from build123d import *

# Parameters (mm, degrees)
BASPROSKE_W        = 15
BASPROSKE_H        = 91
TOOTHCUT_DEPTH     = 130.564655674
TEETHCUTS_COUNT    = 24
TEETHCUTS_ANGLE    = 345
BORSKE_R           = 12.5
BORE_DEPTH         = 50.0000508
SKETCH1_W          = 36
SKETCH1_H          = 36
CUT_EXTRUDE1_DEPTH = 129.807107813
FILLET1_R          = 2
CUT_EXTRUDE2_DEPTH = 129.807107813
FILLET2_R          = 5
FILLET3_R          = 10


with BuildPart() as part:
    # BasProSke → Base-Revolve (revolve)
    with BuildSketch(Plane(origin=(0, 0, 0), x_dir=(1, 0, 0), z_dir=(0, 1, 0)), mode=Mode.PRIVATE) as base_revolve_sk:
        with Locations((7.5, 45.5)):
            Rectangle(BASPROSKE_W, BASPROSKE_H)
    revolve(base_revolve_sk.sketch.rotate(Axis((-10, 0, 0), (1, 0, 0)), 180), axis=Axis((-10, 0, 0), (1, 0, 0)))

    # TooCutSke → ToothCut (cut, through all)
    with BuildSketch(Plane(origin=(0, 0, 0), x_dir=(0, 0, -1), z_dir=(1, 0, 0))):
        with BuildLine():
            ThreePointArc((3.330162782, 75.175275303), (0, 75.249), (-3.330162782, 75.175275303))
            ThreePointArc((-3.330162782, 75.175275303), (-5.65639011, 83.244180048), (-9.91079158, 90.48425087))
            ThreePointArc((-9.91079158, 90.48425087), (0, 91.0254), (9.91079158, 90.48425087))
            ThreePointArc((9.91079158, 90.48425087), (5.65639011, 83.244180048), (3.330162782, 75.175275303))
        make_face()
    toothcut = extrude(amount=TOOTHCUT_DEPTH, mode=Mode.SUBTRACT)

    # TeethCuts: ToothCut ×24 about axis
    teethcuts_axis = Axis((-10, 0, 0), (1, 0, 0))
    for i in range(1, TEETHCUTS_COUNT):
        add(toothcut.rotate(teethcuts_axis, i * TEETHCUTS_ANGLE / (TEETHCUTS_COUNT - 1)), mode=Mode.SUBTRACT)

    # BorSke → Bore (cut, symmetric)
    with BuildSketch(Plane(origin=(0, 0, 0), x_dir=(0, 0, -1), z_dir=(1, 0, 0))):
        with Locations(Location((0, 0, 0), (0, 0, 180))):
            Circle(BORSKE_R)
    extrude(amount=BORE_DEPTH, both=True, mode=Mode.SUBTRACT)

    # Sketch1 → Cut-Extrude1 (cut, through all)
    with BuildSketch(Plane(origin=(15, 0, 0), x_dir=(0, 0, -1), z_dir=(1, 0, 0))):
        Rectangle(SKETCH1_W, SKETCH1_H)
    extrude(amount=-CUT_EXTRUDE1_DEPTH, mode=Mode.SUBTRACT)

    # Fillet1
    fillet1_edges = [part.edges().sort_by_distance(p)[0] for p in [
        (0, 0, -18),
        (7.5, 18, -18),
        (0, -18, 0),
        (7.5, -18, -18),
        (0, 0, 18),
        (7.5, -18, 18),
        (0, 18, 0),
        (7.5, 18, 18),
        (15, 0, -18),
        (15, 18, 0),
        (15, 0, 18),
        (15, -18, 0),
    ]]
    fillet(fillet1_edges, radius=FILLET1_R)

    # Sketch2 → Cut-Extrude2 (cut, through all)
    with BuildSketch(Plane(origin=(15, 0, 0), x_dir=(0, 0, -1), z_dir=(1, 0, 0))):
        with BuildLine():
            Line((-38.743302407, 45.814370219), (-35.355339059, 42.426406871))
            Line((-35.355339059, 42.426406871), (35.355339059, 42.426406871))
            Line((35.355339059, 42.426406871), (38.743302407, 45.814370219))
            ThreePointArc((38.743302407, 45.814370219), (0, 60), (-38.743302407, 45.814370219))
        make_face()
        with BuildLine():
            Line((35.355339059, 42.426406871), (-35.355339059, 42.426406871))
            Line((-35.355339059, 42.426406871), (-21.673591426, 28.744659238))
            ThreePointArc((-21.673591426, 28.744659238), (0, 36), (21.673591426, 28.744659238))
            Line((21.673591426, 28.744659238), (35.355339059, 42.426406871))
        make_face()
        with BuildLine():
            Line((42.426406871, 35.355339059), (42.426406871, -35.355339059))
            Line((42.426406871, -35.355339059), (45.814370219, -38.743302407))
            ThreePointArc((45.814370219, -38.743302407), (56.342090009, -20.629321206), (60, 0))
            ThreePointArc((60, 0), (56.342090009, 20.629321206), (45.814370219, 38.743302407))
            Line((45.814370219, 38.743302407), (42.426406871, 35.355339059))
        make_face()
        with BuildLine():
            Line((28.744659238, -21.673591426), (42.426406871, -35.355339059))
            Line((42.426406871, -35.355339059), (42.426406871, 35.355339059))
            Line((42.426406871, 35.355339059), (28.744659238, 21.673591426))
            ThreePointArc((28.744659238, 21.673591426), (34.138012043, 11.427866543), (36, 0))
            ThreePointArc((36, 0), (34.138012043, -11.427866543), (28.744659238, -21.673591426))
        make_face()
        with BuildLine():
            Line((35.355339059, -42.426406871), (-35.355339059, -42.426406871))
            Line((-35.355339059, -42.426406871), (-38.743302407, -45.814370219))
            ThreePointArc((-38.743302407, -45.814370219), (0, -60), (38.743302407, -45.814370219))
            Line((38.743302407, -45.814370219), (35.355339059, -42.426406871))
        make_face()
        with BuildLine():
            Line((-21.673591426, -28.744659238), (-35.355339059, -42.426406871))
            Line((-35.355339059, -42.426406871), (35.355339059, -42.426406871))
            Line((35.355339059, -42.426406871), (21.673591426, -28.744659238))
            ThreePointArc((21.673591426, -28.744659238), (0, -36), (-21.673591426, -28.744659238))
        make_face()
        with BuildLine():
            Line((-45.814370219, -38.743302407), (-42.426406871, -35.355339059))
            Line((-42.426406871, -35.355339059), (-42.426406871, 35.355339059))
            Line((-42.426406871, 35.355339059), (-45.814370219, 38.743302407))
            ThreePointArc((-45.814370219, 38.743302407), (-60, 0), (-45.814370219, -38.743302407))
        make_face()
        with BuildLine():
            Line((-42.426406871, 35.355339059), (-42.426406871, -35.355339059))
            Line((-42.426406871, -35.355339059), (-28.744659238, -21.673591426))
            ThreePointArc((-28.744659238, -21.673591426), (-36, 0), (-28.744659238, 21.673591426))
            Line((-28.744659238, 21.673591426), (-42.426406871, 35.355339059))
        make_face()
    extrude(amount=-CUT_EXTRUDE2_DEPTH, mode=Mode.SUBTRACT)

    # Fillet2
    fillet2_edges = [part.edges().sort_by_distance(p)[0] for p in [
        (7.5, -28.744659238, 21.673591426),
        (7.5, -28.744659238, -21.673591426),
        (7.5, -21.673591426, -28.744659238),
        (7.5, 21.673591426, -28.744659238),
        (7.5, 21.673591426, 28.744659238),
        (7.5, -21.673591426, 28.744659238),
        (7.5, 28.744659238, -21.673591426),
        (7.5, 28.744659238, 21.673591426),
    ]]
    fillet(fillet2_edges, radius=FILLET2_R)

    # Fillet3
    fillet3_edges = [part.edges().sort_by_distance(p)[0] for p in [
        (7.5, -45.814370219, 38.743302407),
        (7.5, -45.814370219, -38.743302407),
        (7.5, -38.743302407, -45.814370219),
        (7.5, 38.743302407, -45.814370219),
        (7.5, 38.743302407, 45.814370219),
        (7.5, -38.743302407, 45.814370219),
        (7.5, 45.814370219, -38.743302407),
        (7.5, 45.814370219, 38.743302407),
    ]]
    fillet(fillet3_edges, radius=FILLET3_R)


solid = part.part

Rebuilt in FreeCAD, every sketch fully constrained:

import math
import FreeCAD as App
import Part
import Sketcher
Q = App.Units.Quantity


def edges_at(feature, points):
    """Names of the edges that pass closest to the given points."""
    edges = feature.Shape.Edges
    near = lambda p: min(range(len(edges)), key=lambda i: edges[i].distToShape(Part.Vertex(*p))[0])
    return sorted({f"Edge{near(p) + 1}" for p in points})

doc = App.newDocument("Part")
body = doc.addObject("PartDesign::Body", "Body")

sketch1 = body.newObject("Sketcher::SketchObject", "Sketch")
sketch1.AttachmentSupport = (doc.getObject("XZ_Plane"), [""])
sketch1.MapMode = "FlatFace"
sketch1.addGeometry(Part.LineSegment(App.Vector(0, -91, 0), App.Vector(0, 0, 0)), False)
sketch1.addGeometry(Part.LineSegment(App.Vector(0, 0, 0), App.Vector(15, 0, 0)), False)
sketch1.addGeometry(Part.LineSegment(App.Vector(15, 0, 0), App.Vector(15, -91, 0)), False)
sketch1.addGeometry(Part.LineSegment(App.Vector(15, -91, 0), App.Vector(0, -91, 0)), False)
sketch1.addConstraint(Sketcher.Constraint("Coincident", 0, 2, 1, 1))
sketch1.addConstraint(Sketcher.Constraint("Coincident", 1, 2, 2, 1))
sketch1.addConstraint(Sketcher.Constraint("Coincident", 2, 2, 3, 1))
sketch1.addConstraint(Sketcher.Constraint("Coincident", 3, 2, 0, 1))
sketch1.addConstraint(Sketcher.Constraint("Vertical", 0))
sketch1.addConstraint(Sketcher.Constraint("Horizontal", 1))
sketch1.addConstraint(Sketcher.Constraint("Vertical", 2))
sketch1.addConstraint(Sketcher.Constraint("Horizontal", 3))
sketch1.addConstraint(Sketcher.Constraint("Coincident", 0, 2, -1, 1))
sketch1.addConstraint(Sketcher.Constraint("DistanceX", 1, 1, 1, 2, Q("15 mm")))
sketch1.addConstraint(Sketcher.Constraint("DistanceY", 0, 1, 0, 2, Q("91 mm")))
revolution = body.newObject("PartDesign::Revolution", "Revolution")
revolution.Profile = sketch1
revolution.ReferenceAxis = (sketch1, ["H_Axis"])
revolution.Angle = 360

sketch2 = body.newObject("Sketcher::SketchObject", "Sketch001")
sketch2.AttachmentSupport = (doc.getObject("YZ_Plane"), [""])
sketch2.MapMode = "FlatFace"
sketch2.addGeometry(Part.ArcOfCircle(Part.Circle(App.Vector(0, 0, 0), App.Vector(0, 0, 1), 75.249), math.radians(-2.536467), math.radians(2.536467)), False)
sketch2.addGeometry(Part.ArcOfCircle(Part.Circle(App.Vector(69.975044, -36.525307, 0), App.Vector(0, 0, 1), 33.6), math.radians(52.38207), math.radians(81.096613)), False)
sketch2.addGeometry(Part.ArcOfCircle(Part.Circle(App.Vector(0, 0, 0), App.Vector(0, 0, 1), 91.0254), math.radians(-6.250722), math.radians(6.250722)), False)
sketch2.addGeometry(Part.ArcOfCircle(Part.Circle(App.Vector(69.975044, 36.525307, 0), App.Vector(0, 0, 1), 33.6), math.radians(-81.096613), math.radians(-52.38207)), False)
sketch2.addConstraint(Sketcher.Constraint("Coincident", 0, 1, 1, 2))
sketch2.addConstraint(Sketcher.Constraint("Coincident", 1, 1, 2, 1))
sketch2.addConstraint(Sketcher.Constraint("Coincident", 2, 2, 3, 2))
sketch2.addConstraint(Sketcher.Constraint("Coincident", 3, 1, 0, 2))
sketch2.addConstraint(Sketcher.Constraint("Coincident", 0, 3, -1, 1))
sketch2.addConstraint(Sketcher.Constraint("Coincident", 2, 3, -1, 1))
sketch2.addConstraint(Sketcher.Constraint("Equal", 1, 3))
sketch2.addConstraint(Sketcher.Constraint("Symmetric", 1, 3, 3, 3, -1))
sketch2.addConstraint(Sketcher.Constraint("Radius", 1, Q("33.6 mm")))
sketch2.addConstraint(Sketcher.Constraint("Radius", 0, Q("75.249 mm")))
sketch2.addConstraint(Sketcher.Constraint("Radius", 2, Q("91.0254 mm")))
sketch2.addConstraint(Sketcher.Constraint("DistanceY", 1, 1, 3, 3, Q("46.436098 mm")))
sketch2.addConstraint(Sketcher.Constraint("DistanceY", 1, 1, -1, 1, Q("9.910792 mm")))
pocket1 = body.newObject("PartDesign::Pocket", "Pocket")
pocket1.Profile = sketch2
pocket1.Type = "ThroughAll"
pocket1.Reversed = True
doc.recompute()

polarpattern = body.newObject("PartDesign::PolarPattern", "PolarPattern")
polarpattern.Originals = [pocket1]
polarpattern.Axis = (doc.getObject("X_Axis"), [""])
polarpattern.Angle = 360
polarpattern.Occurrences = 24
body.Tip = polarpattern

sketch3 = body.newObject("Sketcher::SketchObject", "Sketch002")
sketch3.AttachmentSupport = (doc.getObject("YZ_Plane"), [""])
sketch3.MapMode = "FlatFace"
sketch3.addGeometry(Part.Circle(App.Vector(0, 0, 0), App.Vector(0, 0, 1), 12.5), False)
sketch3.addConstraint(Sketcher.Constraint("Coincident", 0, 3, -1, 1))
sketch3.addConstraint(Sketcher.Constraint("Diameter", 0, Q("25 mm")))
pocket2 = body.newObject("PartDesign::Pocket", "Pocket001")
pocket2.Profile = sketch3
pocket2.Length = 100.000102
pocket2.Midplane = True

sketch4 = body.newObject("Sketcher::SketchObject", "Sketch003")
sketch4.AttachmentSupport = (doc.getObject("YZ_Plane"), [""])
sketch4.MapMode = "FlatFace"
sketch4.AttachmentOffset = App.Placement(App.Vector(0, 0, 15), App.Rotation())
sketch4.addGeometry(Part.LineSegment(App.Vector(18, 18, 0), App.Vector(-18, 18, 0)), False)
sketch4.addGeometry(Part.LineSegment(App.Vector(-18, 18, 0), App.Vector(-18, -18, 0)), False)
sketch4.addGeometry(Part.LineSegment(App.Vector(-18, -18, 0), App.Vector(18, -18, 0)), False)
sketch4.addGeometry(Part.LineSegment(App.Vector(18, -18, 0), App.Vector(18, 18, 0)), False)
sketch4.addConstraint(Sketcher.Constraint("Coincident", 0, 2, 1, 1))
sketch4.addConstraint(Sketcher.Constraint("Coincident", 1, 2, 2, 1))
sketch4.addConstraint(Sketcher.Constraint("Coincident", 2, 2, 3, 1))
sketch4.addConstraint(Sketcher.Constraint("Coincident", 3, 2, 0, 1))
sketch4.addConstraint(Sketcher.Constraint("Horizontal", 0))
sketch4.addConstraint(Sketcher.Constraint("Vertical", 1))
sketch4.addConstraint(Sketcher.Constraint("Horizontal", 2))
sketch4.addConstraint(Sketcher.Constraint("Vertical", 3))
sketch4.addConstraint(Sketcher.Constraint("Symmetric", 0, 2, 2, 2, -1, 1))
sketch4.addConstraint(Sketcher.Constraint("Equal", 2, 1))
sketch4.addConstraint(Sketcher.Constraint("DistanceX", 0, 2, 0, 1, Q("36 mm")))
pocket3 = body.newObject("PartDesign::Pocket", "Pocket002")
pocket3.Profile = sketch4
pocket3.Type = "ThroughAll"
doc.recompute()

fillet = body.newObject("PartDesign::Fillet", "Fillet")
fillet.Base = (pocket3, edges_at(pocket3, [
    (0, 0, -18),
    (7.5, 18, -18),
    (0, -18, 0),
    (7.5, -18, -18),
    (0, 0, 18),
    (7.5, -18, 18),
    (0, 18, 0),
    (7.5, 18, 18),
    (15, 0, -18),
    (15, 18, 0),
    (15, 0, 18),
    (15, -18, 0),
]))
fillet.Radius = 2

sketch5 = body.newObject("Sketcher::SketchObject", "Sketch004")
sketch5.AttachmentSupport = (doc.getObject("YZ_Plane"), [""])
sketch5.MapMode = "FlatFace"
sketch5.AttachmentOffset = App.Placement(App.Vector(0, 0, 15), App.Rotation())
sketch5.addGeometry(Part.LineSegment(App.Vector(45.81437, 38.743302, 0), App.Vector(28.744659, 21.673591, 0)), False)
sketch5.addGeometry(Part.ArcOfCircle(Part.Circle(App.Vector(0, 0, 0), App.Vector(0, 0, 1), 36), math.radians(-37.016444), math.radians(37.016444)), False)
sketch5.addGeometry(Part.LineSegment(App.Vector(28.744659, -21.673591, 0), App.Vector(45.81437, -38.743302, 0)), False)
sketch5.addGeometry(Part.ArcOfCircle(Part.Circle(App.Vector(0, 0, 0), App.Vector(0, 0, 1), 60), math.radians(-40.219808), math.radians(40.219808)), False)
sketch5.addGeometry(Part.ArcOfCircle(Part.Circle(App.Vector(0, 0, 0), App.Vector(0, 0, 1), 60), math.radians(-130.219808), math.radians(-90)), False)
sketch5.addGeometry(Part.ArcOfCircle(Part.Circle(App.Vector(0, 0, 0), App.Vector(0, 0, 1), 60), math.radians(-90), math.radians(-49.780192)), False)
sketch5.addGeometry(Part.LineSegment(App.Vector(38.743302, -45.81437, 0), App.Vector(21.673591, -28.744659, 0)), False)
sketch5.addGeometry(Part.ArcOfCircle(Part.Circle(App.Vector(0, 0, 0), App.Vector(0, 0, 1), 36), math.radians(-90), math.radians(-52.983556)), False)
sketch5.addGeometry(Part.ArcOfCircle(Part.Circle(App.Vector(0, 0, 0), App.Vector(0, 0, 1), 36), math.radians(-127.016444), math.radians(-90)), False)
sketch5.addGeometry(Part.LineSegment(App.Vector(-21.673591, -28.744659, 0), App.Vector(-38.743302, -45.81437, 0)), False)
sketch5.addGeometry(Part.ArcOfCircle(Part.Circle(App.Vector(0, 0, 0), App.Vector(0, 0, 1), 60), math.radians(139.780192), math.radians(220.219808)), False)
sketch5.addGeometry(Part.LineSegment(App.Vector(-45.81437, -38.743302, 0), App.Vector(-28.744659, -21.673591, 0)), False)
sketch5.addGeometry(Part.ArcOfCircle(Part.Circle(App.Vector(0, 0, 0), App.Vector(0, 0, 1), 36), math.radians(142.983556), math.radians(217.016444)), False)
sketch5.addGeometry(Part.LineSegment(App.Vector(-28.744659, 21.673591, 0), App.Vector(-45.81437, 38.743302, 0)), False)
sketch5.addGeometry(Part.LineSegment(App.Vector(-38.743302, 45.81437, 0), App.Vector(-21.673591, 28.744659, 0)), False)
sketch5.addGeometry(Part.ArcOfCircle(Part.Circle(App.Vector(0, 0, 0), App.Vector(0, 0, 1), 36), math.radians(52.983556), math.radians(127.016444)), False)
sketch5.addGeometry(Part.LineSegment(App.Vector(21.673591, 28.744659, 0), App.Vector(38.743302, 45.81437, 0)), False)
sketch5.addGeometry(Part.ArcOfCircle(Part.Circle(App.Vector(0, 0, 0), App.Vector(0, 0, 1), 60), math.radians(49.780192), math.radians(130.219808)), False)
sketch5.addConstraint(Sketcher.Constraint("Coincident", 0, 2, 1, 2))
sketch5.addConstraint(Sketcher.Constraint("Coincident", 1, 1, 2, 1))
sketch5.addConstraint(Sketcher.Constraint("Coincident", 2, 2, 3, 1))
sketch5.addConstraint(Sketcher.Constraint("Coincident", 3, 2, 0, 1))
sketch5.addConstraint(Sketcher.Constraint("Tangent", 4, 2, 5, 1))
sketch5.addConstraint(Sketcher.Constraint("Coincident", 5, 2, 6, 1))
sketch5.addConstraint(Sketcher.Constraint("Coincident", 6, 2, 7, 2))
sketch5.addConstraint(Sketcher.Constraint("Tangent", 7, 1, 8, 2))
sketch5.addConstraint(Sketcher.Constraint("Coincident", 8, 1, 9, 1))
sketch5.addConstraint(Sketcher.Constraint("Coincident", 9, 2, 4, 1))
sketch5.addConstraint(Sketcher.Constraint("Coincident", 10, 2, 11, 1))
sketch5.addConstraint(Sketcher.Constraint("Coincident", 11, 2, 12, 2))
sketch5.addConstraint(Sketcher.Constraint("Coincident", 12, 1, 13, 1))
sketch5.addConstraint(Sketcher.Constraint("Coincident", 13, 2, 10, 1))
sketch5.addConstraint(Sketcher.Constraint("Coincident", 14, 2, 15, 2))
sketch5.addConstraint(Sketcher.Constraint("Coincident", 15, 1, 16, 1))
sketch5.addConstraint(Sketcher.Constraint("Coincident", 16, 2, 17, 1))
sketch5.addConstraint(Sketcher.Constraint("Coincident", 17, 2, 14, 1))
sketch5.addConstraint(Sketcher.Constraint("Coincident", 1, 3, -1, 1))
sketch5.addConstraint(Sketcher.Constraint("Coincident", 3, 3, -1, 1))
sketch5.addConstraint(Sketcher.Constraint("Coincident", 4, 3, -1, 1))
sketch5.addConstraint(Sketcher.Constraint("Coincident", 7, 3, -1, 1))
sketch5.addConstraint(Sketcher.Constraint("Coincident", 10, 3, -1, 1))
sketch5.addConstraint(Sketcher.Constraint("Coincident", 12, 3, -1, 1))
sketch5.addConstraint(Sketcher.Constraint("Coincident", 15, 3, -1, 1))
sketch5.addConstraint(Sketcher.Constraint("Coincident", 17, 3, -1, 1))
sketch5.addConstraint(Sketcher.Constraint("Equal", 3, 4))
sketch5.addConstraint(Sketcher.Constraint("Equal", 4, 5))
sketch5.addConstraint(Sketcher.Constraint("Equal", 1, 7))
sketch5.addConstraint(Sketcher.Constraint("Equal", 7, 8))
sketch5.addConstraint(Sketcher.Constraint("Equal", 5, 10))
sketch5.addConstraint(Sketcher.Constraint("Equal", 8, 12))
sketch5.addConstraint(Sketcher.Constraint("Equal", 12, 15))
sketch5.addConstraint(Sketcher.Constraint("Equal", 10, 17))
sketch5.addConstraint(Sketcher.Constraint("PointOnObject", 4, 2, -2))
sketch5.addConstraint(Sketcher.Constraint("PointOnObject", 7, 1, -2))
sketch5.addConstraint(Sketcher.Constraint("Perpendicular", 0, 2))
sketch5.addConstraint(Sketcher.Constraint("Parallel", 2, 6))
sketch5.addConstraint(Sketcher.Constraint("Perpendicular", 6, 9))
sketch5.addConstraint(Sketcher.Constraint("Parallel", 9, 11))
sketch5.addConstraint(Sketcher.Constraint("Perpendicular", 11, 13))
sketch5.addConstraint(Sketcher.Constraint("Parallel", 13, 14))
sketch5.addConstraint(Sketcher.Constraint("Perpendicular", 14, 16))
sketch5.addConstraint(Sketcher.Constraint("Horizontal", 6, 2, 8, 1))
sketch5.addConstraint(Sketcher.Constraint("Horizontal", 5, 2, 9, 2))
sketch5.addConstraint(Sketcher.Constraint("Horizontal", 2, 2, 10, 2))
sketch5.addConstraint(Sketcher.Constraint("Horizontal", 0, 2, 12, 1))
sketch5.addConstraint(Sketcher.Constraint("Horizontal", 14, 2, 15, 1))
sketch5.addConstraint(Sketcher.Constraint("Vertical", 0, 2, 1, 1))
sketch5.addConstraint(Sketcher.Constraint("Vertical", 8, 1, 14, 2))
sketch5.addConstraint(Sketcher.Constraint("Equal", 2, 6))
sketch5.addConstraint(Sketcher.Constraint("Radius", 1, Q("36 mm")))
sketch5.addConstraint(Sketcher.Constraint("Radius", 3, Q("60 mm")))
sketch5.addConstraint(Sketcher.Constraint("DistanceX", -1, 1, 0, 2, Q("28.744659 mm")))
pocket4 = body.newObject("PartDesign::Pocket", "Pocket003")
pocket4.Profile = sketch5
pocket4.Type = "ThroughAll"
doc.recompute()

fillet2 = body.newObject("PartDesign::Fillet", "Fillet001")
fillet2.Base = (pocket4, edges_at(pocket4, [
    (7.5, -28.745, 21.674),
    (7.5, -28.745, -21.674),
    (7.5, -21.674, -28.745),
    (7.5, 21.674, -28.745),
    (7.5, 21.674, 28.745),
    (7.5, -21.674, 28.745),
    (7.5, 28.745, -21.674),
    (7.5, 28.745, 21.674),
]))
fillet2.Radius = 5
doc.recompute()

fillet3 = body.newObject("PartDesign::Fillet", "Fillet002")
fillet3.Base = (fillet2, edges_at(fillet2, [
    (7.5, -45.814, 38.743),
    (7.5, -45.814, -38.743),
    (7.5, -38.743, -45.814),
    (7.5, 38.743, -45.814),
    (7.5, 38.743, 45.814),
    (7.5, -38.743, 45.814),
    (7.5, 45.814, -38.743),
    (7.5, 45.814, 38.743),
]))
fillet3.Radius = 10

doc.recompute()
